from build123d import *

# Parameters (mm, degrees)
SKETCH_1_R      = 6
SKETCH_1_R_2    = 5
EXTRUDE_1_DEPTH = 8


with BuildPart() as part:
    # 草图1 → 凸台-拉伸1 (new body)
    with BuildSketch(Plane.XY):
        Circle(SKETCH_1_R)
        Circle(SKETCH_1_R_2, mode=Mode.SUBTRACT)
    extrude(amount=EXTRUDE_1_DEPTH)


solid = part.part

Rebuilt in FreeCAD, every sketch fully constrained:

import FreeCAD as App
import Part
import Sketcher
from FreeCAD import Vector

doc = App.newDocument("Part")
body = doc.addObject("PartDesign::Body", "Body")

sketch1 = doc.addObject("Sketcher::SketchObject", "Sketch")
body.addObject(sketch1)
sketch1.AttachmentSupport = (doc.XY_Plane, [""])
sketch1.MapMode = "FlatFace"
sketch1.addGeometry(Part.Circle(Vector(0, 0, 0), Vector(0, 0, 1), 6), False)
sketch1.addGeometry(Part.Circle(Vector(0, 0, 0), Vector(0, 0, 1), 5), False)
sketch1.addConstraint(Sketcher.Constraint("Coincident", 0, 3, -1, 1))
sketch1.addConstraint(Sketcher.Constraint("Coincident", 1, 3, -1, 1))
sketch1.addConstraint(Sketcher.Constraint("Diameter", 0, 12.0))
sketch1.addConstraint(Sketcher.Constraint("Diameter", 1, 10.0))
pad1 = doc.addObject("PartDesign::Pad", "Pad")
body.addObject(pad1)
pad1.Profile = sketch1
pad1.Length = 8

doc.recompute()
